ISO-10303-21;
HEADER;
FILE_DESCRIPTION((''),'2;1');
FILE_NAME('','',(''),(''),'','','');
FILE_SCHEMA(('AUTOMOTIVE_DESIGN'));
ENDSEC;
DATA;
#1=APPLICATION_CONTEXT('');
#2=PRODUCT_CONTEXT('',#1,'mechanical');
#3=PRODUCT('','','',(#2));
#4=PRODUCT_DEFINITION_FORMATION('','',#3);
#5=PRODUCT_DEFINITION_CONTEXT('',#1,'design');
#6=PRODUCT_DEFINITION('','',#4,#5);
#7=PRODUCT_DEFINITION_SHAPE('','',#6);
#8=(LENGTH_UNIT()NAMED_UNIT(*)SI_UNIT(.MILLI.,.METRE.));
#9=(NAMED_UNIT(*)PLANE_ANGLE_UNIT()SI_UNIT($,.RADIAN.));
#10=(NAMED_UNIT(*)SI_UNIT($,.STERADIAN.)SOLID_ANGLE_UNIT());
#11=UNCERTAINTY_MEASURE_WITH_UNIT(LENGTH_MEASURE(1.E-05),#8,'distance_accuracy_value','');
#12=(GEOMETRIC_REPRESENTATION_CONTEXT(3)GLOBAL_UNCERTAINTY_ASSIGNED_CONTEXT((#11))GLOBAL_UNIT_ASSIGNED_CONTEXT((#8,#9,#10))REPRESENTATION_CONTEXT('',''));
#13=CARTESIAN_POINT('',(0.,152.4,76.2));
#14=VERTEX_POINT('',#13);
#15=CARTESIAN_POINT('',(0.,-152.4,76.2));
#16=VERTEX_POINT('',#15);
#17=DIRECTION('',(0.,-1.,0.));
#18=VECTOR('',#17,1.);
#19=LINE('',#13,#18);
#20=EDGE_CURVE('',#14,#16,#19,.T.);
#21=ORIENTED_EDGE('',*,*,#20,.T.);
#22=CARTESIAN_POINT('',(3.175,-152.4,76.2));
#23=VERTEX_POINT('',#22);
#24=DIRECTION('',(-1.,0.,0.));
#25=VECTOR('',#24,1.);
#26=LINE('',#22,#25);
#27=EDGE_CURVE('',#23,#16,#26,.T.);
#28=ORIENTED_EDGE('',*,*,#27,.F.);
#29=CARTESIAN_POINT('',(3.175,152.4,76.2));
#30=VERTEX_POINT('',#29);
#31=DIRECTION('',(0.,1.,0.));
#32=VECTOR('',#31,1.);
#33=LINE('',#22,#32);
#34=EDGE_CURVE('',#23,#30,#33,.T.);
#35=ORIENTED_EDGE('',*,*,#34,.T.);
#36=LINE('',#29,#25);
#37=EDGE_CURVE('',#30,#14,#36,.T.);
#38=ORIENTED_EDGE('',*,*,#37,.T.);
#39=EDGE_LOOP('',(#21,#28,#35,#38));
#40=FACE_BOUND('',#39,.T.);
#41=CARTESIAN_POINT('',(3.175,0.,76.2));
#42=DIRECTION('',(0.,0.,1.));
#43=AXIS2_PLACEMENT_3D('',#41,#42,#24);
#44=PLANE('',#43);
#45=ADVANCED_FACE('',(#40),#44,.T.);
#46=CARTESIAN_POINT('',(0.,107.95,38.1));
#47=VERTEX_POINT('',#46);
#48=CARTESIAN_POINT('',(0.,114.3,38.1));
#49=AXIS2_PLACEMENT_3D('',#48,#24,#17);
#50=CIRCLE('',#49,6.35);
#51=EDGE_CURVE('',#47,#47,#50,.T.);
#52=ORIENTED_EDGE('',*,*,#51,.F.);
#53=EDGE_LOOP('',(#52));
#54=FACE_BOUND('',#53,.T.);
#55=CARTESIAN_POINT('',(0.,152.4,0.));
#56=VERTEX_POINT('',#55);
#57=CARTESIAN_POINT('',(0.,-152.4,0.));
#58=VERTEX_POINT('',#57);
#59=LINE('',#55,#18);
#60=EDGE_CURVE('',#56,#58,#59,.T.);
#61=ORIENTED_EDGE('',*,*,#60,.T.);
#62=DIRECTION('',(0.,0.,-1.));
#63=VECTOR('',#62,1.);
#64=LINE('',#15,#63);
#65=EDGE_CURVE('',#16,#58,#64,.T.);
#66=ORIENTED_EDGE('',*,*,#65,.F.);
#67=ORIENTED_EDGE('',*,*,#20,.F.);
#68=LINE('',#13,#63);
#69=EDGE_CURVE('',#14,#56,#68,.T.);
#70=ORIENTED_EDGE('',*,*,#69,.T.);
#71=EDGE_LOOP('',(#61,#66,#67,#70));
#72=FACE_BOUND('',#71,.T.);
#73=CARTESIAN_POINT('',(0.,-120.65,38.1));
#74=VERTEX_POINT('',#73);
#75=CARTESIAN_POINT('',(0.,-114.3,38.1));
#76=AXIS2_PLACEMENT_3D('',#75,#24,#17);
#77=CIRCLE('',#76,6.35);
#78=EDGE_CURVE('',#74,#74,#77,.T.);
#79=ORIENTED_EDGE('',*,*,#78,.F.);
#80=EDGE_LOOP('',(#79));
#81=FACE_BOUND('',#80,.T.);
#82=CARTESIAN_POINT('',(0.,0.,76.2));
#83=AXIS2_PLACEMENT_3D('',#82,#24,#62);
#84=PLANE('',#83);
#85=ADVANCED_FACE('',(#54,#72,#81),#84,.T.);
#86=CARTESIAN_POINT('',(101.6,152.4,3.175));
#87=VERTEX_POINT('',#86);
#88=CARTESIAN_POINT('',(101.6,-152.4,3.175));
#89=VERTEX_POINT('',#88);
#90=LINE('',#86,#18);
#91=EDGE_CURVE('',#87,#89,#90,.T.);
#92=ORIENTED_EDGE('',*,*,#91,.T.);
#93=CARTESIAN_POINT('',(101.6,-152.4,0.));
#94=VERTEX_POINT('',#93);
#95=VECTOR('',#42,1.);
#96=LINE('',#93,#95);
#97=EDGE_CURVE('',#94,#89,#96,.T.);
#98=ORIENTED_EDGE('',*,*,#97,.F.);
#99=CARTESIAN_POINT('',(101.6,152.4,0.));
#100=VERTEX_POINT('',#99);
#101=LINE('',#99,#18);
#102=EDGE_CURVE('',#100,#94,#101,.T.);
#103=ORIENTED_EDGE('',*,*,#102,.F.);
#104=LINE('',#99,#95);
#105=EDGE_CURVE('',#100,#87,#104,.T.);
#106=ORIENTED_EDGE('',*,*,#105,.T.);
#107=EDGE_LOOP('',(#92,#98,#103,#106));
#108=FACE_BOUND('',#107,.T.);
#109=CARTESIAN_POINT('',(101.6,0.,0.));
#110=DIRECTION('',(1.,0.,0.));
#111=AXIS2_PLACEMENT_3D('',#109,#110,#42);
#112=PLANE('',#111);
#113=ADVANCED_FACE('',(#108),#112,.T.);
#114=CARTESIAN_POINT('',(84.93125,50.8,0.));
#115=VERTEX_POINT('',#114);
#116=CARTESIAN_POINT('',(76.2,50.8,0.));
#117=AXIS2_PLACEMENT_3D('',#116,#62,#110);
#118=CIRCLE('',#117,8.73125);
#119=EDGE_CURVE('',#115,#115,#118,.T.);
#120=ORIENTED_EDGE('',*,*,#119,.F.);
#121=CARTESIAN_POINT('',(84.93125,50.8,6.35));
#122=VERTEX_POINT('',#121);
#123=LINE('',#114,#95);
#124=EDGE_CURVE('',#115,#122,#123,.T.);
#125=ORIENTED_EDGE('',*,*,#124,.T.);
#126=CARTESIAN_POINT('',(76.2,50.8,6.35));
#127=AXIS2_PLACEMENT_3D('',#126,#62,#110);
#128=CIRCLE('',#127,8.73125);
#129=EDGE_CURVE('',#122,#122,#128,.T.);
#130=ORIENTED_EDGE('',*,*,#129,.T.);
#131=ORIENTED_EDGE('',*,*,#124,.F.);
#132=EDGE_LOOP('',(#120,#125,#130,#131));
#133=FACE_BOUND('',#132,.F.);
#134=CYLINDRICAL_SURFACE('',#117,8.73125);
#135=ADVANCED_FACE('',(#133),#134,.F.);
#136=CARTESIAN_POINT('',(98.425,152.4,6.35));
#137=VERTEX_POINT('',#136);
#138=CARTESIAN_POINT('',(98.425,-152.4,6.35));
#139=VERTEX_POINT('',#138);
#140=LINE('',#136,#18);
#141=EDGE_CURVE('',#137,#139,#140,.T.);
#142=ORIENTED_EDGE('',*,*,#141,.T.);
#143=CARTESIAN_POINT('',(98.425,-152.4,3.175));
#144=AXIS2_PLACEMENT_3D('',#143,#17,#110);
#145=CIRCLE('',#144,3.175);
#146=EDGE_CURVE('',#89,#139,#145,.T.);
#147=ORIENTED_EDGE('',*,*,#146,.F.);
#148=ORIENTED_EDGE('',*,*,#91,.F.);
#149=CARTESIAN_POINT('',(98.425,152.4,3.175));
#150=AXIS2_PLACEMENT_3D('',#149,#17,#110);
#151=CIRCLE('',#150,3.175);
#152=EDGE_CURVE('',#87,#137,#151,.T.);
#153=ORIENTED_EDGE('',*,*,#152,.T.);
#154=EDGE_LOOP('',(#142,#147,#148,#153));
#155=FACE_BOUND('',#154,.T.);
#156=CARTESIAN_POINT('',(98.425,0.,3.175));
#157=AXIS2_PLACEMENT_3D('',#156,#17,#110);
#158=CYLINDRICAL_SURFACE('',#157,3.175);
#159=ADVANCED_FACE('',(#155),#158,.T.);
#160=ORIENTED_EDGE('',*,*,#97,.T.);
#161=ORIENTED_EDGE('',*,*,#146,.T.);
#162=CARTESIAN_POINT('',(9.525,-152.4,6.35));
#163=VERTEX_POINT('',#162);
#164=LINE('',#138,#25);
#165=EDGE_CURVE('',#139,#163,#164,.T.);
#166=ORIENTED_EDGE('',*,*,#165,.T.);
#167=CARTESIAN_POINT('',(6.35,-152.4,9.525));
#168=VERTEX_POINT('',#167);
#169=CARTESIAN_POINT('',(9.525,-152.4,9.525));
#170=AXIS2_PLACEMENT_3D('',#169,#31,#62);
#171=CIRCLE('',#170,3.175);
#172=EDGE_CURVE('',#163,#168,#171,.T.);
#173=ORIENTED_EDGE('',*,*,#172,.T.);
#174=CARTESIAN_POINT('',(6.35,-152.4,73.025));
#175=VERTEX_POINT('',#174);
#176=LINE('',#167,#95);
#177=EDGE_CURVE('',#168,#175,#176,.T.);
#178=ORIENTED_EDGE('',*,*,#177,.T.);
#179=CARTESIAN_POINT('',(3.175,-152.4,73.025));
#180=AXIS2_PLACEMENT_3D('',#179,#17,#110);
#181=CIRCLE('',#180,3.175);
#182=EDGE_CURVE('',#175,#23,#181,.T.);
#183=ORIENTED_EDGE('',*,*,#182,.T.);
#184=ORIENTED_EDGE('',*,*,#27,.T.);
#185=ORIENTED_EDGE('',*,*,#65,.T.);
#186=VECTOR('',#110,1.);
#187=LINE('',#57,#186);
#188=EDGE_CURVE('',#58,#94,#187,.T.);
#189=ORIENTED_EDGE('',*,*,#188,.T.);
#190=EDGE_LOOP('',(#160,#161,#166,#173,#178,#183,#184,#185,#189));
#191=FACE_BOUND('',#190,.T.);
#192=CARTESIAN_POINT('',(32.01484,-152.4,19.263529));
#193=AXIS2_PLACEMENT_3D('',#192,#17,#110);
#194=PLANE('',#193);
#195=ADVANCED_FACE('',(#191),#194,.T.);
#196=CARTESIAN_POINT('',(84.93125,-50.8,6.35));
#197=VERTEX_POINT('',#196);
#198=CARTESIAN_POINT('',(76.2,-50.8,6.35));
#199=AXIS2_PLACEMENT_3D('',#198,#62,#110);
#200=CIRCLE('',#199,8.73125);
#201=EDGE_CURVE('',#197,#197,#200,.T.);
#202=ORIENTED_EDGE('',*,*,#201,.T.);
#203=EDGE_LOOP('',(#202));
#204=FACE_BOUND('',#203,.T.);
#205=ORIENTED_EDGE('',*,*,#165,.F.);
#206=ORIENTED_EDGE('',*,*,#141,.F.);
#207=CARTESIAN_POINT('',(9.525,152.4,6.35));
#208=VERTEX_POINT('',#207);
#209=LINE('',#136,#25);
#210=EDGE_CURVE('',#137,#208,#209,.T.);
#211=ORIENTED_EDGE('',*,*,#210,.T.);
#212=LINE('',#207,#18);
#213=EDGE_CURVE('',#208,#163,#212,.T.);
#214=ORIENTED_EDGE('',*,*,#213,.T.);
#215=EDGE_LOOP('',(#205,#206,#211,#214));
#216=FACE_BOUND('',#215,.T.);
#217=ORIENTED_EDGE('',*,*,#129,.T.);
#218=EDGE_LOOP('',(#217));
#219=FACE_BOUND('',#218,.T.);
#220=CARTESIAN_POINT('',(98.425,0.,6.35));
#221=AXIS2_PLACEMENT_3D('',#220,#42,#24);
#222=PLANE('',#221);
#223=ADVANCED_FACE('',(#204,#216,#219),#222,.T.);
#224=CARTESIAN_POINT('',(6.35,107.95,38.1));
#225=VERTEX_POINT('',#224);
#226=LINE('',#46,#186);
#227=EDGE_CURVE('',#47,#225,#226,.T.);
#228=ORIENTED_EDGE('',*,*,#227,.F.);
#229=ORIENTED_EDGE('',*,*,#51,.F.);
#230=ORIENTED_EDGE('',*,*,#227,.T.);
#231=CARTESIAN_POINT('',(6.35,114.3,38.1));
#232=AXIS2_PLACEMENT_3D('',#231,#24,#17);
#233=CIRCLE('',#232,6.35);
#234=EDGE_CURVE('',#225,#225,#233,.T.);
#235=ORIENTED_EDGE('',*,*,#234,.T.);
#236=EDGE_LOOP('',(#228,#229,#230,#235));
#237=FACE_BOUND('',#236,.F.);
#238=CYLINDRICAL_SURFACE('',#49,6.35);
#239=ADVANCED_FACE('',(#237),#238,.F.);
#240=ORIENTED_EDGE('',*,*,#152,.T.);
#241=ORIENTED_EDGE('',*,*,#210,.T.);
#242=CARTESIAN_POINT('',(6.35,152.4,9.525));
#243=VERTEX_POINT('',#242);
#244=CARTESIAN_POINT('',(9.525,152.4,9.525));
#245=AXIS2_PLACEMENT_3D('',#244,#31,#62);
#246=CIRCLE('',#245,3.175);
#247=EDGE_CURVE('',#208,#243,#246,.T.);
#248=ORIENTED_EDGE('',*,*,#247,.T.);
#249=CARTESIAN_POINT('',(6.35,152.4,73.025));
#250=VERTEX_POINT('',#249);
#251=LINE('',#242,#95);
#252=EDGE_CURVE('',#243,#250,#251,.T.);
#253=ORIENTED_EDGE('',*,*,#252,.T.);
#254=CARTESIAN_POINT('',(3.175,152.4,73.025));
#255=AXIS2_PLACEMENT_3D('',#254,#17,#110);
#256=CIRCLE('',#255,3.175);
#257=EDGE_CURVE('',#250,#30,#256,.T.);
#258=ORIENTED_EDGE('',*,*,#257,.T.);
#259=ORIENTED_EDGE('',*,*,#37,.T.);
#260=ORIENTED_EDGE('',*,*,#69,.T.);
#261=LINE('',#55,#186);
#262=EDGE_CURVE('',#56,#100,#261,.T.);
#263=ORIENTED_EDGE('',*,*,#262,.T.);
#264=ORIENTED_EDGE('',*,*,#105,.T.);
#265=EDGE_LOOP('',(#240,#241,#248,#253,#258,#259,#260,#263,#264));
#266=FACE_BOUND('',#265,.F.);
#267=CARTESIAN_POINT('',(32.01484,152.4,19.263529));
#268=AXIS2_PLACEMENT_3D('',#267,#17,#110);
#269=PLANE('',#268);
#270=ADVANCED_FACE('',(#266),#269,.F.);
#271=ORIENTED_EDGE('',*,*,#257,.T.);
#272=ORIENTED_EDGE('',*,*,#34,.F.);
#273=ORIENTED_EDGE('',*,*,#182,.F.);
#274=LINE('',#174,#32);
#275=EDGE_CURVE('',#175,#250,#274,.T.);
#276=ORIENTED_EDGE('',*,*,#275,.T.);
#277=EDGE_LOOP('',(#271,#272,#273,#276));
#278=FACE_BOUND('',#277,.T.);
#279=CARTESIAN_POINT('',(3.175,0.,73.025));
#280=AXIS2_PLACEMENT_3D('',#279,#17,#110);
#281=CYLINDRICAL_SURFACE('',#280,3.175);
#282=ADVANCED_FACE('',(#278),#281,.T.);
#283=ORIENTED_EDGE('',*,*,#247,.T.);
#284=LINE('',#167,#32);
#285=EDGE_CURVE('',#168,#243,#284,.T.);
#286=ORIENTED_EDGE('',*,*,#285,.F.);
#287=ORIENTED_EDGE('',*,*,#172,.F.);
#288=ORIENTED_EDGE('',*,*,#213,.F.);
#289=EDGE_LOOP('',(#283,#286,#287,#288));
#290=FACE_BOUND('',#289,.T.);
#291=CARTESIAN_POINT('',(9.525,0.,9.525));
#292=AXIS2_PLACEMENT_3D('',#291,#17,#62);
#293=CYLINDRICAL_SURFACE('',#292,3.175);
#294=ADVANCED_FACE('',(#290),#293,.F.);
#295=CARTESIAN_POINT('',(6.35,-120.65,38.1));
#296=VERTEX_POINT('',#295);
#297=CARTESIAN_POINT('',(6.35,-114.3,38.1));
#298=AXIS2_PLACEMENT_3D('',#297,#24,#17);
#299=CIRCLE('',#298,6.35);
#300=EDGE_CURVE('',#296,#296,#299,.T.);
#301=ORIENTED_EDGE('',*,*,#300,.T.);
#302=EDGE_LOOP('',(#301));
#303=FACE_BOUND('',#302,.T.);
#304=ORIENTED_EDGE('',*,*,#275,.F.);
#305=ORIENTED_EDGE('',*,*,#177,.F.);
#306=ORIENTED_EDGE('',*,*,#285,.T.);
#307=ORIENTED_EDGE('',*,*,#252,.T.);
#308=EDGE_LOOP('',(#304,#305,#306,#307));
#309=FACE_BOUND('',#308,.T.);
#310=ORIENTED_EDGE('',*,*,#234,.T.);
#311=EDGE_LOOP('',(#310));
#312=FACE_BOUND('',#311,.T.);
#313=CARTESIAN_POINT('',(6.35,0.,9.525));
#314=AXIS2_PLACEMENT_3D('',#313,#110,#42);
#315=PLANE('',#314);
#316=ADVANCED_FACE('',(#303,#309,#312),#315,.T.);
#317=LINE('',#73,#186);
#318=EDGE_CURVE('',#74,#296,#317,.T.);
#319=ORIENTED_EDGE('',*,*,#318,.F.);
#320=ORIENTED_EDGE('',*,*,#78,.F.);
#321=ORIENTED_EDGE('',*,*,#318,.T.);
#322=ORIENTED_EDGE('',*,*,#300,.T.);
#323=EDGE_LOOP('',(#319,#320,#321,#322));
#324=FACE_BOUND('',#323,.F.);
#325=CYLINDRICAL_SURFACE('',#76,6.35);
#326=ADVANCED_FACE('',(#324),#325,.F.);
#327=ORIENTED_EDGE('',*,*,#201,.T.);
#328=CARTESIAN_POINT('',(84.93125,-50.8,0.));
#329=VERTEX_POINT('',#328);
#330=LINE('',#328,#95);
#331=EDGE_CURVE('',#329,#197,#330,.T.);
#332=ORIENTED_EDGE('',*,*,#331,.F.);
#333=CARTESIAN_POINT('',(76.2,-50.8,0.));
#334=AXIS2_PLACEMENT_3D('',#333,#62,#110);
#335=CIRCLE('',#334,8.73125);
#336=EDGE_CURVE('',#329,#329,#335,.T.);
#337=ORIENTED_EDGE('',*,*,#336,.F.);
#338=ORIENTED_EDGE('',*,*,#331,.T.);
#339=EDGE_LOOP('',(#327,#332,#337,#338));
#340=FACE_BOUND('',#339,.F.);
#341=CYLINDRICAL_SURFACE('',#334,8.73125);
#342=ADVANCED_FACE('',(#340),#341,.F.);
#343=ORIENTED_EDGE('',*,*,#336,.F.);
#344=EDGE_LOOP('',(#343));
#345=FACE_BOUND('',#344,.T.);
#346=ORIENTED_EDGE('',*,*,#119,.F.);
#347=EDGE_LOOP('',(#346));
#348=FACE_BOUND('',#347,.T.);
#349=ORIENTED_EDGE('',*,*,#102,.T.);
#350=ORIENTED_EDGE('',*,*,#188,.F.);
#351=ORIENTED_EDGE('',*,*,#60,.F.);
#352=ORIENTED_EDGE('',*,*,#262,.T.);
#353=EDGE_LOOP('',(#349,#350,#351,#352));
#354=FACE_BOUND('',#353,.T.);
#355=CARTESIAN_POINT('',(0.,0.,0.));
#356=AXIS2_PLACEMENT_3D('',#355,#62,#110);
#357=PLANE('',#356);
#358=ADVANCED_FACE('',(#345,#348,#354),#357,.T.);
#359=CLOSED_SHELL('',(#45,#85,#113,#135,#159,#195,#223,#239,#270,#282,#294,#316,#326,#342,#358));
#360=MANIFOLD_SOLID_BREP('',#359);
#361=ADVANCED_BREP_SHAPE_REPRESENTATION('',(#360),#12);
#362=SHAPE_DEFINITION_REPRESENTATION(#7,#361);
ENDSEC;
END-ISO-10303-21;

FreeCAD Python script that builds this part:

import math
import FreeCAD as App
import Part
import Sketcher

V = App.Vector
Q = App.Units.Quantity

doc = App.newDocument("Part")
body = doc.addObject("PartDesign::Body", "Body")

# Sketch on XZ plane
sketch1 = body.newObject("Sketcher::SketchObject", "Sketch")
sketch1.AttachmentSupport = (doc.getObject("XZ_Plane"), [""])
sketch1.MapMode = "FlatFace"
sketch1.addGeometry([
    Part.LineSegment(V(3.175, 76.2, 0), V(0, 76.2, 0)),  # 0
    Part.LineSegment(V(0, 76.2, 0), V(0, 0, 0)),  # 1
    Part.LineSegment(V(0, 0, 0), V(101.6, 0, 0)),  # 2
    Part.LineSegment(V(101.6, 0, 0), V(101.6, 3.175, 0)),  # 3
    Part.ArcOfCircle(Part.Circle(V(98.425, 3.175, 0), V(0, 0, 1), 3.175), math.radians(0), math.radians(90)),  # 4
    Part.LineSegment(V(98.425, 6.35, 0), V(9.525, 6.35, 0)),  # 5
    Part.ArcOfCircle(Part.Circle(V(9.525, 9.525, 0), V(0, 0, 1), 3.175), math.radians(180), math.radians(270)),  # 6
    Part.LineSegment(V(6.35, 9.525, 0), V(6.35, 73.025, 0)),  # 7
    Part.ArcOfCircle(Part.Circle(V(3.175, 73.025, 0), V(0, 0, 1), 3.175), math.radians(0), math.radians(90)),  # 8
], False)
sketch1.addConstraint([
    Sketcher.Constraint("Coincident", 0, 2, 1, 1),
    Sketcher.Constraint("Coincident", 1, 2, 2, 1),
    Sketcher.Constraint("Coincident", 2, 2, 3, 1),
    Sketcher.Constraint("Tangent", 3, 2, 4, 1),
    Sketcher.Constraint("Tangent", 4, 2, 5, 1),
    Sketcher.Constraint("Tangent", 5, 2, 6, 2),
    Sketcher.Constraint("Tangent", 6, 1, 7, 1),
    Sketcher.Constraint("Tangent", 7, 2, 8, 1),
    Sketcher.Constraint("Tangent", 8, 2, 0, 1),
    Sketcher.Constraint("Horizontal", 0),
    Sketcher.Constraint("Vertical", 1),
    Sketcher.Constraint("Horizontal", 2),
    Sketcher.Constraint("Vertical", 3),
    Sketcher.Constraint("Horizontal", 5),
    Sketcher.Constraint("Vertical", 7),
    Sketcher.Constraint("Coincident", 1, 2, -1, 1),
    Sketcher.Constraint("Equal", 4, 6),
    Sketcher.Constraint("Equal", 6, 8),
    Sketcher.Constraint("Equal", 0, 3),
    Sketcher.Constraint("DistanceX", 2, 1, 2, 2, Q("4 in")),
    Sketcher.Constraint("DistanceY", 1, 2, 1, 1, Q("3 in")),
    Sketcher.Constraint("DistanceX", 5, 2, 5, 1, Q("3.5 in")),
    Sketcher.Constraint("Radius", 4, Q("0.125 in")),
])
pad1 = body.newObject("PartDesign::Pad", "Pad")
pad1.Profile = sketch1
pad1.Length = Q("12 in")
pad1.Midplane = True

# Sketch on XY plane
sketch2 = body.newObject("Sketcher::SketchObject", "Sketch001")
sketch2.AttachmentSupport = (doc.getObject("XY_Plane"), [""])
sketch2.MapMode = "FlatFace"
sketch2.addGeometry([
    Part.Circle(V(76.2, -50.8, 0), V(0, 0, 1), 8.73125),
    Part.Circle(V(76.2, 50.8, 0), V(0, 0, 1), 8.73125),
], False)
sketch2.addConstraint([
    Sketcher.Constraint("Equal", 0, 1),
    Sketcher.Constraint("Symmetric", 0, 3, 1, 3, -1),
    Sketcher.Constraint("Diameter", 0, Q("0.6875 in")),
    Sketcher.Constraint("DistanceX", -1, 1, 0, 3, Q("3 in")),
    Sketcher.Constraint("DistanceY", 0, 3, -1, 1, Q("2 in")),
])
pocket1 = body.newObject("PartDesign::Pocket", "Pocket")
pocket1.Profile = sketch2
pocket1.Type = "ThroughAll"
pocket1.Reversed = True

# Sketch on YZ plane
sketch3 = body.newObject("Sketcher::SketchObject", "Sketch002")
sketch3.AttachmentSupport = (doc.getObject("YZ_Plane"), [""])
sketch3.MapMode = "FlatFace"
sketch3.addGeometry([
    Part.Circle(V(114.3, 38.1, 0), V(0, 0, 1), 6.35),
    Part.Circle(V(-114.3, 38.1, 0), V(0, 0, 1), 6.35),
], False)
sketch3.addConstraint([
    Sketcher.Constraint("Equal", 0, 1),
    Sketcher.Constraint("Symmetric", 0, 3, 1, 3, -2),
    Sketcher.Constraint("Diameter", 0, Q("0.5 in")),
    Sketcher.Constraint("DistanceX", 1, 3, 0, 3, Q("9 in")),
    Sketcher.Constraint("DistanceY", -1, 1, 0, 3, Q("1.5 in")),
])
pocket2 = body.newObject("PartDesign::Pocket", "Pocket001")
pocket2.Profile = sketch3
pocket2.Type = "ThroughAll"
pocket2.Reversed = True

doc.recompute()
